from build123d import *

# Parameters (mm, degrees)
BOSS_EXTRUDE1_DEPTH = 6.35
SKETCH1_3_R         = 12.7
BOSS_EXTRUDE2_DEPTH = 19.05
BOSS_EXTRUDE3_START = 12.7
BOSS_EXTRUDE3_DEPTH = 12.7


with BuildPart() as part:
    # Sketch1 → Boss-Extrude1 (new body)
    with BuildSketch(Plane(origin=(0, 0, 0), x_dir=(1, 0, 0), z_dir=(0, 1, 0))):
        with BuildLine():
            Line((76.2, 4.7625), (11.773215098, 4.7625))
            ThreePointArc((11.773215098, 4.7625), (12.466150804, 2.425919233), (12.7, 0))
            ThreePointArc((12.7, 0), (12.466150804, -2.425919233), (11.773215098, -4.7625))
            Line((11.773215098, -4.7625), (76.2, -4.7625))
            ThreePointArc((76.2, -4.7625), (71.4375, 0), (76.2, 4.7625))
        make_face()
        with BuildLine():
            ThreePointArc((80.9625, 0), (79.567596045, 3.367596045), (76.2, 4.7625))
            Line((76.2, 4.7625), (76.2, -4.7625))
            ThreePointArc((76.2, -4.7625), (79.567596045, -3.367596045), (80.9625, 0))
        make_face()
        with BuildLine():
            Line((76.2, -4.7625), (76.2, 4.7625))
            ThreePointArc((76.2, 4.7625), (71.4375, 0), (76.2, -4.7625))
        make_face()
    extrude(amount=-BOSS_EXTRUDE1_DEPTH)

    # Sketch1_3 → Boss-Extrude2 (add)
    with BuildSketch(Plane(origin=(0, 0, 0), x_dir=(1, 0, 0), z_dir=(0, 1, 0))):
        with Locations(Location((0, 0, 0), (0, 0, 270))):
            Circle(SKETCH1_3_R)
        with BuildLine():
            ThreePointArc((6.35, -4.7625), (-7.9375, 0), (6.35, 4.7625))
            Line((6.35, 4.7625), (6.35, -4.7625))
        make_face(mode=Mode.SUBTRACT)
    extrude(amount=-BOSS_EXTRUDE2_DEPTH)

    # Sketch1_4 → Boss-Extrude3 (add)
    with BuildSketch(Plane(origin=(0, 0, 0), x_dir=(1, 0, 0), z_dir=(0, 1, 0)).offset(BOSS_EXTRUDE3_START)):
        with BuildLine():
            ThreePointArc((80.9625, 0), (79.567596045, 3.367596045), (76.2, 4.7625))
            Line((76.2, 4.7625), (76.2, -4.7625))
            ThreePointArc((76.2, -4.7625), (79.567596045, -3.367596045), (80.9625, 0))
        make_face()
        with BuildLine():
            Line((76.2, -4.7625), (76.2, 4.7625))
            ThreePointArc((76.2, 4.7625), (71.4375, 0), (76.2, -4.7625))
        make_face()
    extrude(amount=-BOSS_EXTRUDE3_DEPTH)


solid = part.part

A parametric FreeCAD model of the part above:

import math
import FreeCAD as App
import Part
import Sketcher
from FreeCAD import Vector
Q = App.Units.Quantity

doc = App.newDocument("Part")
body = doc.addObject("PartDesign::Body", "Body")

sketch1 = body.newObject("Sketcher::SketchObject", "Sketch")
sketch1.AttachmentSupport = (doc.getObject("XZ_Plane"), [""])
sketch1.MapMode = "FlatFace"
sketch1.addGeometry(Part.ArcOfCircle(Part.Circle(Vector(0, 0, 0), Vector(0, 0, 1), 12.7), math.radians(0), math.radians(22.024313)), False)
sketch1.addGeometry(Part.LineSegment(Vector(11.773215, 4.7625, 0), Vector(76.2, 4.7625, 0)), False)
sketch1.addGeometry(Part.ArcOfCircle(Part.Circle(Vector(76.2, 0, 0), Vector(0, 0, 1), 4.7625), math.radians(0), math.radians(90)), False)
sketch1.addGeometry(Part.ArcOfCircle(Part.Circle(Vector(76.2, 0, 0), Vector(0, 0, 1), 4.7625), math.radians(-90), math.radians(0)), False)
sketch1.addGeometry(Part.LineSegment(Vector(76.2, -4.7625, 0), Vector(11.773215, -4.7625, 0)), False)
sketch1.addGeometry(Part.ArcOfCircle(Part.Circle(Vector(0, 0, 0), Vector(0, 0, 1), 12.7), math.radians(-22.024313), math.radians(0)), False)
sketch1.addConstraint(Sketcher.Constraint("Coincident", 0, 2, 1, 1))
sketch1.addConstraint(Sketcher.Constraint("Tangent", 1, 2, 2, 2))
sketch1.addConstraint(Sketcher.Constraint("Tangent", 2, 1, 3, 2))
sketch1.addConstraint(Sketcher.Constraint("Tangent", 3, 1, 4, 1))
sketch1.addConstraint(Sketcher.Constraint("Coincident", 4, 2, 5, 1))
sketch1.addConstraint(Sketcher.Constraint("Tangent", 5, 2, 0, 1))
sketch1.addConstraint(Sketcher.Constraint("Horizontal", 1))
sketch1.addConstraint(Sketcher.Constraint("Horizontal", 4))
sketch1.addConstraint(Sketcher.Constraint("Coincident", 0, 3, -1, 1))
sketch1.addConstraint(Sketcher.Constraint("Equal", 2, 3))
sketch1.addConstraint(Sketcher.Constraint("Equal", 0, 5))
sketch1.addConstraint(Sketcher.Constraint("PointOnObject", 2, 3, -1))
sketch1.addConstraint(Sketcher.Constraint("PointOnObject", 2, 1, -1))
sketch1.addConstraint(Sketcher.Constraint("PointOnObject", 5, 2, -1))
sketch1.addConstraint(Sketcher.Constraint("Radius", 0, Q("0.5 in")))
sketch1.addConstraint(Sketcher.Constraint("DistanceX", -1, 1, 2, 3, Q("3 in")))
sketch1.addConstraint(Sketcher.Constraint("Radius", 2, Q("0.1875 in")))
pad1 = body.newObject("PartDesign::Pad", "Pad")
pad1.Profile = sketch1
pad1.Length = Q("0.25 in")

sketch2 = body.newObject("Sketcher::SketchObject", "Sketch001")
sketch2.AttachmentSupport = (doc.getObject("XZ_Plane"), [""])
sketch2.MapMode = "FlatFace"
sketch2.addGeometry(Part.Circle(Vector(0, 0, 0), Vector(0, 0, 1), 12.7), False)
sketch2.addGeometry(Part.LineSegment(Vector(6.35, -4.7625, 0), Vector(6.35, 4.7625, 0)), False)
sketch2.addGeometry(Part.ArcOfCircle(Part.Circle(Vector(0, 0, 0), Vector(0, 0, 1), 7.9375), math.radians(36.869898), math.radians(323.130102)), False)
sketch2.addConstraint(Sketcher.Constraint("Coincident", 1, 1, 2, 2))
sketch2.addConstraint(Sketcher.Constraint("Coincident", 2, 1, 1, 2))
sketch2.addConstraint(Sketcher.Constraint("Vertical", 1))
sketch2.addConstraint(Sketcher.Constraint("Coincident", 0, 3, -1, 1))
sketch2.addConstraint(Sketcher.Constraint("Coincident", 2, 3, -1, 1))
sketch2.addConstraint(Sketcher.Constraint("Diameter", 0, Q("1 in")))
sketch2.addConstraint(Sketcher.Constraint("Radius", 2, Q("0.3125 in")))
sketch2.addConstraint(Sketcher.Constraint("DistanceY", 1, 1, 1, 2, Q("0.375 in")))
pad2 = body.newObject("PartDesign::Pad", "Pad001")
pad2.Profile = sketch2
pad2.Length = Q("0.75 in")

sketch3 = body.newObject("Sketcher::SketchObject", "Sketch002")
sketch3.AttachmentSupport = (doc.getObject("XZ_Plane"), [""])
sketch3.MapMode = "FlatFace"
sketch3.AttachmentOffset = App.Placement(Vector(0, 0, -0.5 * 25.4), App.Rotation())
sketch3.addGeometry(Part.ArcOfCircle(Part.Circle(Vector(76.2, 0, 0), Vector(0, 0, 1), 4.7625), math.radians(-90), math.radians(0)), False)
sketch3.addGeometry(Part.ArcOfCircle(Part.Circle(Vector(76.2, 0, 0), Vector(0, 0, 1), 4.7625), math.radians(90), math.radians(270)), False)
sketch3.addGeometry(Part.ArcOfCircle(Part.Circle(Vector(76.2, 0, 0), Vector(0, 0, 1), 4.7625), math.radians(0), math.radians(90)), False)
sketch3.addConstraint(Sketcher.Constraint("Tangent", 0, 1, 1, 2))
sketch3.addConstraint(Sketcher.Constraint("Tangent", 1, 1, 2, 2))
sketch3.addConstraint(Sketcher.Constraint("Tangent", 2, 1, 0, 2))
sketch3.addConstraint(Sketcher.Constraint("Symmetric", 0, 1, 1, 1, -1))
sketch3.addConstraint(Sketcher.Constraint("PointOnObject", 2, 1, -1))
sketch3.addConstraint(Sketcher.Constraint("Vertical", 2, 3, 0, 1))
sketch3.addConstraint(Sketcher.Constraint("DistanceX", -1, 1, 0, 3, Q("3 in")))
sketch3.addConstraint(Sketcher.Constraint("Radius", 0, Q("0.1875 in")))
pad3 = body.newObject("PartDesign::Pad", "Pad002")
pad3.Profile = sketch3
pad3.Length = Q("0.5 in")

doc.recompute()
